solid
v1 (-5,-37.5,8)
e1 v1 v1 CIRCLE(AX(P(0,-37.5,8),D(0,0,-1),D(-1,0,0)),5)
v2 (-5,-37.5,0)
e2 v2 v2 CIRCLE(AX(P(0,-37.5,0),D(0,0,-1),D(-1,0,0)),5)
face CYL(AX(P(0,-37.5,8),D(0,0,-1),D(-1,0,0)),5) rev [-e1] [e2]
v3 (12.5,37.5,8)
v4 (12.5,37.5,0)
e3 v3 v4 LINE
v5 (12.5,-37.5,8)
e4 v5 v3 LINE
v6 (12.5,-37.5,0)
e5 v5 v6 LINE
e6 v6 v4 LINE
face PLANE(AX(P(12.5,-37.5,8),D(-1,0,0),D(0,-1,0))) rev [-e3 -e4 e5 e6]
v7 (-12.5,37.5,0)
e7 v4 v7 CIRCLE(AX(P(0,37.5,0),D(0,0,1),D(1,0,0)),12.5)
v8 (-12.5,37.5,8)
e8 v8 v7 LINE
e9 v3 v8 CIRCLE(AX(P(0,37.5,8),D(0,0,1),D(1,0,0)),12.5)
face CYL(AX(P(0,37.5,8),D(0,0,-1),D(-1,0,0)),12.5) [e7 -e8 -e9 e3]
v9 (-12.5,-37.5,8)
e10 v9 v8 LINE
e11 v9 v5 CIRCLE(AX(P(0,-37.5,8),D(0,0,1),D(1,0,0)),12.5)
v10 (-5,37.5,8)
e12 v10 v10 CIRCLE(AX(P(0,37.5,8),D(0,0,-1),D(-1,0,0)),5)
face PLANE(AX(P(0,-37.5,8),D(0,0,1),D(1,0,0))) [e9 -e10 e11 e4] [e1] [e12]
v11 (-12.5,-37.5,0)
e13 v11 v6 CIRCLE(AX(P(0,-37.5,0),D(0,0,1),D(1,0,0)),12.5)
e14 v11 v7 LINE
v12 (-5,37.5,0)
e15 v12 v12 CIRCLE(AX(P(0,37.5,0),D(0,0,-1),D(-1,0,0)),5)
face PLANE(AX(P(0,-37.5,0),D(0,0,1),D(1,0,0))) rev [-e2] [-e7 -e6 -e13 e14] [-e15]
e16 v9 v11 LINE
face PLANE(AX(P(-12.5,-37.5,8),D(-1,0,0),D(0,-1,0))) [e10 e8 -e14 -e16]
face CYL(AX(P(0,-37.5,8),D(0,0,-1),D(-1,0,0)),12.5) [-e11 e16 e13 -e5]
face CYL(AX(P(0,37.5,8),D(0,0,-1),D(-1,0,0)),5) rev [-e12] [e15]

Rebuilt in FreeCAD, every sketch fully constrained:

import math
import FreeCAD as App
import Part
import Sketcher
from FreeCAD import Vector
Q = App.Units.Quantity

doc = App.newDocument("Part")
params = doc.addObject("Spreadsheet::Sheet", "Params")
for row, (alias, value) in enumerate([
    ("sketch1_radius", "12.5 mm"),
    ("sketch1_height", "75 mm"),
    ("pad1_length", "8 mm"),
    ("sketch2_diameter", "10 mm"),
    ("pocket1_length", "8 mm"),
], start=1):
    params.set(f"A{row}", alias)
    params.set(f"B{row}", "=" + value)
    params.setAlias(f"B{row}", alias)

body = doc.addObject("PartDesign::Body", "Body")

sketch1 = body.newObject("Sketcher::SketchObject", "Sketch")
sketch1.AttachmentSupport = (doc.getObject("XY_Plane"), [""])
sketch1.MapMode = "FlatFace"
sketch1.addGeometry([
    Part.LineSegment(Vector(-12, 38, 0), Vector(-12, -38, 0)),
    Part.ArcOfCircle(Part.Circle(Vector(0, -38, 0), Vector(0, 0, 1), 12), math.radians(180), math.radians(360)),
    Part.LineSegment(Vector(12, -38, 0), Vector(12, 38, 0)),
    Part.ArcOfCircle(Part.Circle(Vector(0, 38, 0), Vector(0, 0, 1), 12), math.radians(0), math.radians(180)),
], False)
sketch1.addConstraint([
    Sketcher.Constraint("Tangent", 0, 2, 1, 1),
    Sketcher.Constraint("Tangent", 1, 2, 2, 1),
    Sketcher.Constraint("Tangent", 2, 2, 3, 1),
    Sketcher.Constraint("Tangent", 3, 2, 0, 1),
    Sketcher.Constraint("Vertical", 0),
    Sketcher.Constraint("Vertical", 2),
    Sketcher.Constraint("Symmetric", 1, 3, 3, 3, -1, 1),
    Sketcher.Constraint("Radius", 1, Q("12.5 mm")),
    Sketcher.Constraint("DistanceY", 0, 2, 0, 1, Q("75 mm")),
])
sketch1.setExpression("Constraints[7]", "Params.sketch1_radius")
sketch1.setExpression("Constraints[8]", "Params.sketch1_height")
pad1 = body.newObject("PartDesign::Pad", "Pad")
pad1.Profile = sketch1
pad1.setExpression("Length", "Params.pad1_length")

sketch2 = body.newObject("Sketcher::SketchObject", "Sketch001")
sketch2.AttachmentSupport = (doc.getObject("XY_Plane"), [""])
sketch2.MapMode = "FlatFace"
sketch2.addGeometry([
    Part.Circle(Vector(0, -38, 0), Vector(0, 0, 1), 5),
    Part.Circle(Vector(0, 38, 0), Vector(0, 0, 1), 5),
], False)
sketch2.addConstraint([
    Sketcher.Constraint("Equal", 0, 1),
    Sketcher.Constraint("Symmetric", 0, 3, 1, 3, -1, 1),
    Sketcher.Constraint("PointOnObject", 0, 3, -2),
    Sketcher.Constraint("Diameter", 0, Q("10 mm")),
    Sketcher.Constraint("DistanceY", 0, 3, 1, 3, Q("75 mm")),
])
sketch2.setExpression("Constraints[3]", "Params.sketch2_diameter")
pocket1 = body.newObject("PartDesign::Pocket", "Pocket")
pocket1.Profile = sketch2
pocket1.setExpression("Length", "Params.pocket1_length")
pocket1.Reversed = True

doc.recompute()
